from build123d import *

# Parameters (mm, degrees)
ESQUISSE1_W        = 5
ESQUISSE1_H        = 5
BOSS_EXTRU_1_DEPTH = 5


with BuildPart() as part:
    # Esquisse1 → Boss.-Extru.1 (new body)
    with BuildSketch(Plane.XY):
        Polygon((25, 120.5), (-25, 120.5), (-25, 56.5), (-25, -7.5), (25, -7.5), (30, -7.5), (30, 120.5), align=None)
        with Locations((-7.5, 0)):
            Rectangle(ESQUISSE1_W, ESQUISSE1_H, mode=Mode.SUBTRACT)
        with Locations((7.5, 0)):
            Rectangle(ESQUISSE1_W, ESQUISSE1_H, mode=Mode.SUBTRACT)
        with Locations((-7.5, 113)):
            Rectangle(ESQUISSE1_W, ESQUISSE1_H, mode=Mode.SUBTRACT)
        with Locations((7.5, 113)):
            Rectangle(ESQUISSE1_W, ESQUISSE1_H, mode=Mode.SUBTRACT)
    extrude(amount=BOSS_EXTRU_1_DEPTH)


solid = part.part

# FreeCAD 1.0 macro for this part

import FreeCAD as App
import Part
import Sketcher
from FreeCAD import Vector
Q = App.Units.Quantity

doc = App.newDocument("Part")
params = doc.addObject("Spreadsheet::Sheet", "Params")
for row, (alias, value) in enumerate([
    ("sketch1_width", "55 mm"),
    ("sketch1_width2", "5 mm"),
    ("sketch1_height", "128 mm"),
    ("pad1_length", "5 mm"),
], start=1):
    params.set(f"A{row}", alias)
    params.set(f"B{row}", "=" + value)
    params.setAlias(f"B{row}", alias)

body = doc.addObject("PartDesign::Body", "Body")

# Sketch on XY plane
sketch1 = body.newObject("Sketcher::SketchObject", "Sketch")
sketch1.AttachmentSupport = (doc.getObject("XY_Plane"), [""])
sketch1.MapMode = "FlatFace"
sketch1.addGeometry([
    Part.LineSegment(Vector(-25, 120.5, 0), Vector(-25, -7.5, 0)),  # 0
    Part.LineSegment(Vector(-25, -7.5, 0), Vector(30, -7.5, 0)),  # 1
    Part.LineSegment(Vector(30, -7.5, 0), Vector(30, 120.5, 0)),  # 2
    Part.LineSegment(Vector(30, 120.5, 0), Vector(-25, 120.5, 0)),  # 3
    Part.LineSegment(Vector(-5, -2.5, 0), Vector(-10, -2.5, 0)),  # 4
    Part.LineSegment(Vector(-10, -2.5, 0), Vector(-10, 2.5, 0)),  # 5
    Part.LineSegment(Vector(-10, 2.5, 0), Vector(-5, 2.5, 0)),  # 6
    Part.LineSegment(Vector(-5, 2.5, 0), Vector(-5, -2.5, 0)),  # 7
    Part.LineSegment(Vector(10, -2.5, 0), Vector(5, -2.5, 0)),  # 8
    Part.LineSegment(Vector(5, -2.5, 0), Vector(5, 2.5, 0)),  # 9
    Part.LineSegment(Vector(5, 2.5, 0), Vector(10, 2.5, 0)),  # 10
    Part.LineSegment(Vector(10, 2.5, 0), Vector(10, -2.5, 0)),  # 11
    Part.LineSegment(Vector(-5, 110.5, 0), Vector(-10, 110.5, 0)),  # 12
    Part.LineSegment(Vector(-10, 110.5, 0), Vector(-10, 115.5, 0)),  # 13
    Part.LineSegment(Vector(-10, 115.5, 0), Vector(-5, 115.5, 0)),  # 14
    Part.LineSegment(Vector(-5, 115.5, 0), Vector(-5, 110.5, 0)),  # 15
    Part.LineSegment(Vector(10, 110.5, 0), Vector(5, 110.5, 0)),  # 16
    Part.LineSegment(Vector(5, 110.5, 0), Vector(5, 115.5, 0)),  # 17
    Part.LineSegment(Vector(5, 115.5, 0), Vector(10, 115.5, 0)),  # 18
    Part.LineSegment(Vector(10, 115.5, 0), Vector(10, 110.5, 0)),  # 19
], False)
sketch1.addConstraint([
    Sketcher.Constraint("Coincident", 0, 2, 1, 1),
    Sketcher.Constraint("Coincident", 1, 2, 2, 1),
    Sketcher.Constraint("Coincident", 2, 2, 3, 1),
    Sketcher.Constraint("Coincident", 3, 2, 0, 1),
    Sketcher.Constraint("Coincident", 4, 2, 5, 1),
    Sketcher.Constraint("Coincident", 5, 2, 6, 1),
    Sketcher.Constraint("Coincident", 6, 2, 7, 1),
    Sketcher.Constraint("Coincident", 7, 2, 4, 1),
    Sketcher.Constraint("Coincident", 8, 2, 9, 1),
    Sketcher.Constraint("Coincident", 9, 2, 10, 1),
    Sketcher.Constraint("Coincident", 10, 2, 11, 1),
    Sketcher.Constraint("Coincident", 11, 2, 8, 1),
    Sketcher.Constraint("Coincident", 12, 2, 13, 1),
    Sketcher.Constraint("Coincident", 13, 2, 14, 1),
    Sketcher.Constraint("Coincident", 14, 2, 15, 1),
    Sketcher.Constraint("Coincident", 15, 2, 12, 1),
    Sketcher.Constraint("Coincident", 16, 2, 17, 1),
    Sketcher.Constraint("Coincident", 17, 2, 18, 1),
    Sketcher.Constraint("Coincident", 18, 2, 19, 1),
    Sketcher.Constraint("Coincident", 19, 2, 16, 1),
    Sketcher.Constraint("Vertical", 0),
    Sketcher.Constraint("Horizontal", 1),
    Sketcher.Constraint("Vertical", 2),
    Sketcher.Constraint("Horizontal", 3),
    Sketcher.Constraint("Horizontal", 4),
    Sketcher.Constraint("Vertical", 5),
    Sketcher.Constraint("Horizontal", 6),
    Sketcher.Constraint("Vertical", 7),
    Sketcher.Constraint("Horizontal", 8),
    Sketcher.Constraint("Vertical", 9),
    Sketcher.Constraint("Horizontal", 10),
    Sketcher.Constraint("Vertical", 11),
    Sketcher.Constraint("Horizontal", 12),
    Sketcher.Constraint("Vertical", 13),
    Sketcher.Constraint("Horizontal", 14),
    Sketcher.Constraint("Vertical", 15),
    Sketcher.Constraint("Horizontal", 16),
    Sketcher.Constraint("Vertical", 17),
    Sketcher.Constraint("Horizontal", 18),
    Sketcher.Constraint("Vertical", 19),
    Sketcher.Constraint("Symmetric", 6, 2, 8, 2, -1, 1),
    Sketcher.Constraint("Symmetric", 4, 2, 10, 2, -1, 1),
    Sketcher.Constraint("Symmetric", 15, 2, 16, 2, -2),
    Sketcher.Constraint("Symmetric", 13, 2, 18, 2, -2),
    Sketcher.Constraint("Horizontal", 7, 2, 8, 2),
    Sketcher.Constraint("Vertical", 5, 2, 12, 2),
    Sketcher.Constraint("Vertical", 7, 2, 14, 2),
    Sketcher.Constraint("Equal", 18, 5),
    Sketcher.Constraint("Equal", 11, 13),
    Sketcher.Constraint("DistanceX", 1, 1, 1, 2, Q("55 mm")),
    Sketcher.Constraint("DistanceX", 4, 2, 4, 1, Q("5 mm")),
    Sketcher.Constraint("DistanceY", 0, 2, 0, 1, Q("128 mm")),
    Sketcher.Constraint("DistanceX", 0, 2, -1, 1, Q("25 mm")),
    Sketcher.Constraint("DistanceX", 4, 2, -1, 1, Q("10 mm")),
    Sketcher.Constraint("DistanceY", 0, 2, 4, 2, Q("5 mm")),
    Sketcher.Constraint("DistanceY", 12, 2, 3, 2, Q("10 mm")),
])
sketch1.setExpression("Constraints[49]", "Params.sketch1_width")
sketch1.setExpression("Constraints[50]", "Params.sketch1_width2")
sketch1.setExpression("Constraints[51]", "Params.sketch1_height")
pad1 = body.newObject("PartDesign::Pad", "Pad")
pad1.Profile = sketch1
pad1.setExpression("Length", "Params.pad1_length")

doc.recompute()
